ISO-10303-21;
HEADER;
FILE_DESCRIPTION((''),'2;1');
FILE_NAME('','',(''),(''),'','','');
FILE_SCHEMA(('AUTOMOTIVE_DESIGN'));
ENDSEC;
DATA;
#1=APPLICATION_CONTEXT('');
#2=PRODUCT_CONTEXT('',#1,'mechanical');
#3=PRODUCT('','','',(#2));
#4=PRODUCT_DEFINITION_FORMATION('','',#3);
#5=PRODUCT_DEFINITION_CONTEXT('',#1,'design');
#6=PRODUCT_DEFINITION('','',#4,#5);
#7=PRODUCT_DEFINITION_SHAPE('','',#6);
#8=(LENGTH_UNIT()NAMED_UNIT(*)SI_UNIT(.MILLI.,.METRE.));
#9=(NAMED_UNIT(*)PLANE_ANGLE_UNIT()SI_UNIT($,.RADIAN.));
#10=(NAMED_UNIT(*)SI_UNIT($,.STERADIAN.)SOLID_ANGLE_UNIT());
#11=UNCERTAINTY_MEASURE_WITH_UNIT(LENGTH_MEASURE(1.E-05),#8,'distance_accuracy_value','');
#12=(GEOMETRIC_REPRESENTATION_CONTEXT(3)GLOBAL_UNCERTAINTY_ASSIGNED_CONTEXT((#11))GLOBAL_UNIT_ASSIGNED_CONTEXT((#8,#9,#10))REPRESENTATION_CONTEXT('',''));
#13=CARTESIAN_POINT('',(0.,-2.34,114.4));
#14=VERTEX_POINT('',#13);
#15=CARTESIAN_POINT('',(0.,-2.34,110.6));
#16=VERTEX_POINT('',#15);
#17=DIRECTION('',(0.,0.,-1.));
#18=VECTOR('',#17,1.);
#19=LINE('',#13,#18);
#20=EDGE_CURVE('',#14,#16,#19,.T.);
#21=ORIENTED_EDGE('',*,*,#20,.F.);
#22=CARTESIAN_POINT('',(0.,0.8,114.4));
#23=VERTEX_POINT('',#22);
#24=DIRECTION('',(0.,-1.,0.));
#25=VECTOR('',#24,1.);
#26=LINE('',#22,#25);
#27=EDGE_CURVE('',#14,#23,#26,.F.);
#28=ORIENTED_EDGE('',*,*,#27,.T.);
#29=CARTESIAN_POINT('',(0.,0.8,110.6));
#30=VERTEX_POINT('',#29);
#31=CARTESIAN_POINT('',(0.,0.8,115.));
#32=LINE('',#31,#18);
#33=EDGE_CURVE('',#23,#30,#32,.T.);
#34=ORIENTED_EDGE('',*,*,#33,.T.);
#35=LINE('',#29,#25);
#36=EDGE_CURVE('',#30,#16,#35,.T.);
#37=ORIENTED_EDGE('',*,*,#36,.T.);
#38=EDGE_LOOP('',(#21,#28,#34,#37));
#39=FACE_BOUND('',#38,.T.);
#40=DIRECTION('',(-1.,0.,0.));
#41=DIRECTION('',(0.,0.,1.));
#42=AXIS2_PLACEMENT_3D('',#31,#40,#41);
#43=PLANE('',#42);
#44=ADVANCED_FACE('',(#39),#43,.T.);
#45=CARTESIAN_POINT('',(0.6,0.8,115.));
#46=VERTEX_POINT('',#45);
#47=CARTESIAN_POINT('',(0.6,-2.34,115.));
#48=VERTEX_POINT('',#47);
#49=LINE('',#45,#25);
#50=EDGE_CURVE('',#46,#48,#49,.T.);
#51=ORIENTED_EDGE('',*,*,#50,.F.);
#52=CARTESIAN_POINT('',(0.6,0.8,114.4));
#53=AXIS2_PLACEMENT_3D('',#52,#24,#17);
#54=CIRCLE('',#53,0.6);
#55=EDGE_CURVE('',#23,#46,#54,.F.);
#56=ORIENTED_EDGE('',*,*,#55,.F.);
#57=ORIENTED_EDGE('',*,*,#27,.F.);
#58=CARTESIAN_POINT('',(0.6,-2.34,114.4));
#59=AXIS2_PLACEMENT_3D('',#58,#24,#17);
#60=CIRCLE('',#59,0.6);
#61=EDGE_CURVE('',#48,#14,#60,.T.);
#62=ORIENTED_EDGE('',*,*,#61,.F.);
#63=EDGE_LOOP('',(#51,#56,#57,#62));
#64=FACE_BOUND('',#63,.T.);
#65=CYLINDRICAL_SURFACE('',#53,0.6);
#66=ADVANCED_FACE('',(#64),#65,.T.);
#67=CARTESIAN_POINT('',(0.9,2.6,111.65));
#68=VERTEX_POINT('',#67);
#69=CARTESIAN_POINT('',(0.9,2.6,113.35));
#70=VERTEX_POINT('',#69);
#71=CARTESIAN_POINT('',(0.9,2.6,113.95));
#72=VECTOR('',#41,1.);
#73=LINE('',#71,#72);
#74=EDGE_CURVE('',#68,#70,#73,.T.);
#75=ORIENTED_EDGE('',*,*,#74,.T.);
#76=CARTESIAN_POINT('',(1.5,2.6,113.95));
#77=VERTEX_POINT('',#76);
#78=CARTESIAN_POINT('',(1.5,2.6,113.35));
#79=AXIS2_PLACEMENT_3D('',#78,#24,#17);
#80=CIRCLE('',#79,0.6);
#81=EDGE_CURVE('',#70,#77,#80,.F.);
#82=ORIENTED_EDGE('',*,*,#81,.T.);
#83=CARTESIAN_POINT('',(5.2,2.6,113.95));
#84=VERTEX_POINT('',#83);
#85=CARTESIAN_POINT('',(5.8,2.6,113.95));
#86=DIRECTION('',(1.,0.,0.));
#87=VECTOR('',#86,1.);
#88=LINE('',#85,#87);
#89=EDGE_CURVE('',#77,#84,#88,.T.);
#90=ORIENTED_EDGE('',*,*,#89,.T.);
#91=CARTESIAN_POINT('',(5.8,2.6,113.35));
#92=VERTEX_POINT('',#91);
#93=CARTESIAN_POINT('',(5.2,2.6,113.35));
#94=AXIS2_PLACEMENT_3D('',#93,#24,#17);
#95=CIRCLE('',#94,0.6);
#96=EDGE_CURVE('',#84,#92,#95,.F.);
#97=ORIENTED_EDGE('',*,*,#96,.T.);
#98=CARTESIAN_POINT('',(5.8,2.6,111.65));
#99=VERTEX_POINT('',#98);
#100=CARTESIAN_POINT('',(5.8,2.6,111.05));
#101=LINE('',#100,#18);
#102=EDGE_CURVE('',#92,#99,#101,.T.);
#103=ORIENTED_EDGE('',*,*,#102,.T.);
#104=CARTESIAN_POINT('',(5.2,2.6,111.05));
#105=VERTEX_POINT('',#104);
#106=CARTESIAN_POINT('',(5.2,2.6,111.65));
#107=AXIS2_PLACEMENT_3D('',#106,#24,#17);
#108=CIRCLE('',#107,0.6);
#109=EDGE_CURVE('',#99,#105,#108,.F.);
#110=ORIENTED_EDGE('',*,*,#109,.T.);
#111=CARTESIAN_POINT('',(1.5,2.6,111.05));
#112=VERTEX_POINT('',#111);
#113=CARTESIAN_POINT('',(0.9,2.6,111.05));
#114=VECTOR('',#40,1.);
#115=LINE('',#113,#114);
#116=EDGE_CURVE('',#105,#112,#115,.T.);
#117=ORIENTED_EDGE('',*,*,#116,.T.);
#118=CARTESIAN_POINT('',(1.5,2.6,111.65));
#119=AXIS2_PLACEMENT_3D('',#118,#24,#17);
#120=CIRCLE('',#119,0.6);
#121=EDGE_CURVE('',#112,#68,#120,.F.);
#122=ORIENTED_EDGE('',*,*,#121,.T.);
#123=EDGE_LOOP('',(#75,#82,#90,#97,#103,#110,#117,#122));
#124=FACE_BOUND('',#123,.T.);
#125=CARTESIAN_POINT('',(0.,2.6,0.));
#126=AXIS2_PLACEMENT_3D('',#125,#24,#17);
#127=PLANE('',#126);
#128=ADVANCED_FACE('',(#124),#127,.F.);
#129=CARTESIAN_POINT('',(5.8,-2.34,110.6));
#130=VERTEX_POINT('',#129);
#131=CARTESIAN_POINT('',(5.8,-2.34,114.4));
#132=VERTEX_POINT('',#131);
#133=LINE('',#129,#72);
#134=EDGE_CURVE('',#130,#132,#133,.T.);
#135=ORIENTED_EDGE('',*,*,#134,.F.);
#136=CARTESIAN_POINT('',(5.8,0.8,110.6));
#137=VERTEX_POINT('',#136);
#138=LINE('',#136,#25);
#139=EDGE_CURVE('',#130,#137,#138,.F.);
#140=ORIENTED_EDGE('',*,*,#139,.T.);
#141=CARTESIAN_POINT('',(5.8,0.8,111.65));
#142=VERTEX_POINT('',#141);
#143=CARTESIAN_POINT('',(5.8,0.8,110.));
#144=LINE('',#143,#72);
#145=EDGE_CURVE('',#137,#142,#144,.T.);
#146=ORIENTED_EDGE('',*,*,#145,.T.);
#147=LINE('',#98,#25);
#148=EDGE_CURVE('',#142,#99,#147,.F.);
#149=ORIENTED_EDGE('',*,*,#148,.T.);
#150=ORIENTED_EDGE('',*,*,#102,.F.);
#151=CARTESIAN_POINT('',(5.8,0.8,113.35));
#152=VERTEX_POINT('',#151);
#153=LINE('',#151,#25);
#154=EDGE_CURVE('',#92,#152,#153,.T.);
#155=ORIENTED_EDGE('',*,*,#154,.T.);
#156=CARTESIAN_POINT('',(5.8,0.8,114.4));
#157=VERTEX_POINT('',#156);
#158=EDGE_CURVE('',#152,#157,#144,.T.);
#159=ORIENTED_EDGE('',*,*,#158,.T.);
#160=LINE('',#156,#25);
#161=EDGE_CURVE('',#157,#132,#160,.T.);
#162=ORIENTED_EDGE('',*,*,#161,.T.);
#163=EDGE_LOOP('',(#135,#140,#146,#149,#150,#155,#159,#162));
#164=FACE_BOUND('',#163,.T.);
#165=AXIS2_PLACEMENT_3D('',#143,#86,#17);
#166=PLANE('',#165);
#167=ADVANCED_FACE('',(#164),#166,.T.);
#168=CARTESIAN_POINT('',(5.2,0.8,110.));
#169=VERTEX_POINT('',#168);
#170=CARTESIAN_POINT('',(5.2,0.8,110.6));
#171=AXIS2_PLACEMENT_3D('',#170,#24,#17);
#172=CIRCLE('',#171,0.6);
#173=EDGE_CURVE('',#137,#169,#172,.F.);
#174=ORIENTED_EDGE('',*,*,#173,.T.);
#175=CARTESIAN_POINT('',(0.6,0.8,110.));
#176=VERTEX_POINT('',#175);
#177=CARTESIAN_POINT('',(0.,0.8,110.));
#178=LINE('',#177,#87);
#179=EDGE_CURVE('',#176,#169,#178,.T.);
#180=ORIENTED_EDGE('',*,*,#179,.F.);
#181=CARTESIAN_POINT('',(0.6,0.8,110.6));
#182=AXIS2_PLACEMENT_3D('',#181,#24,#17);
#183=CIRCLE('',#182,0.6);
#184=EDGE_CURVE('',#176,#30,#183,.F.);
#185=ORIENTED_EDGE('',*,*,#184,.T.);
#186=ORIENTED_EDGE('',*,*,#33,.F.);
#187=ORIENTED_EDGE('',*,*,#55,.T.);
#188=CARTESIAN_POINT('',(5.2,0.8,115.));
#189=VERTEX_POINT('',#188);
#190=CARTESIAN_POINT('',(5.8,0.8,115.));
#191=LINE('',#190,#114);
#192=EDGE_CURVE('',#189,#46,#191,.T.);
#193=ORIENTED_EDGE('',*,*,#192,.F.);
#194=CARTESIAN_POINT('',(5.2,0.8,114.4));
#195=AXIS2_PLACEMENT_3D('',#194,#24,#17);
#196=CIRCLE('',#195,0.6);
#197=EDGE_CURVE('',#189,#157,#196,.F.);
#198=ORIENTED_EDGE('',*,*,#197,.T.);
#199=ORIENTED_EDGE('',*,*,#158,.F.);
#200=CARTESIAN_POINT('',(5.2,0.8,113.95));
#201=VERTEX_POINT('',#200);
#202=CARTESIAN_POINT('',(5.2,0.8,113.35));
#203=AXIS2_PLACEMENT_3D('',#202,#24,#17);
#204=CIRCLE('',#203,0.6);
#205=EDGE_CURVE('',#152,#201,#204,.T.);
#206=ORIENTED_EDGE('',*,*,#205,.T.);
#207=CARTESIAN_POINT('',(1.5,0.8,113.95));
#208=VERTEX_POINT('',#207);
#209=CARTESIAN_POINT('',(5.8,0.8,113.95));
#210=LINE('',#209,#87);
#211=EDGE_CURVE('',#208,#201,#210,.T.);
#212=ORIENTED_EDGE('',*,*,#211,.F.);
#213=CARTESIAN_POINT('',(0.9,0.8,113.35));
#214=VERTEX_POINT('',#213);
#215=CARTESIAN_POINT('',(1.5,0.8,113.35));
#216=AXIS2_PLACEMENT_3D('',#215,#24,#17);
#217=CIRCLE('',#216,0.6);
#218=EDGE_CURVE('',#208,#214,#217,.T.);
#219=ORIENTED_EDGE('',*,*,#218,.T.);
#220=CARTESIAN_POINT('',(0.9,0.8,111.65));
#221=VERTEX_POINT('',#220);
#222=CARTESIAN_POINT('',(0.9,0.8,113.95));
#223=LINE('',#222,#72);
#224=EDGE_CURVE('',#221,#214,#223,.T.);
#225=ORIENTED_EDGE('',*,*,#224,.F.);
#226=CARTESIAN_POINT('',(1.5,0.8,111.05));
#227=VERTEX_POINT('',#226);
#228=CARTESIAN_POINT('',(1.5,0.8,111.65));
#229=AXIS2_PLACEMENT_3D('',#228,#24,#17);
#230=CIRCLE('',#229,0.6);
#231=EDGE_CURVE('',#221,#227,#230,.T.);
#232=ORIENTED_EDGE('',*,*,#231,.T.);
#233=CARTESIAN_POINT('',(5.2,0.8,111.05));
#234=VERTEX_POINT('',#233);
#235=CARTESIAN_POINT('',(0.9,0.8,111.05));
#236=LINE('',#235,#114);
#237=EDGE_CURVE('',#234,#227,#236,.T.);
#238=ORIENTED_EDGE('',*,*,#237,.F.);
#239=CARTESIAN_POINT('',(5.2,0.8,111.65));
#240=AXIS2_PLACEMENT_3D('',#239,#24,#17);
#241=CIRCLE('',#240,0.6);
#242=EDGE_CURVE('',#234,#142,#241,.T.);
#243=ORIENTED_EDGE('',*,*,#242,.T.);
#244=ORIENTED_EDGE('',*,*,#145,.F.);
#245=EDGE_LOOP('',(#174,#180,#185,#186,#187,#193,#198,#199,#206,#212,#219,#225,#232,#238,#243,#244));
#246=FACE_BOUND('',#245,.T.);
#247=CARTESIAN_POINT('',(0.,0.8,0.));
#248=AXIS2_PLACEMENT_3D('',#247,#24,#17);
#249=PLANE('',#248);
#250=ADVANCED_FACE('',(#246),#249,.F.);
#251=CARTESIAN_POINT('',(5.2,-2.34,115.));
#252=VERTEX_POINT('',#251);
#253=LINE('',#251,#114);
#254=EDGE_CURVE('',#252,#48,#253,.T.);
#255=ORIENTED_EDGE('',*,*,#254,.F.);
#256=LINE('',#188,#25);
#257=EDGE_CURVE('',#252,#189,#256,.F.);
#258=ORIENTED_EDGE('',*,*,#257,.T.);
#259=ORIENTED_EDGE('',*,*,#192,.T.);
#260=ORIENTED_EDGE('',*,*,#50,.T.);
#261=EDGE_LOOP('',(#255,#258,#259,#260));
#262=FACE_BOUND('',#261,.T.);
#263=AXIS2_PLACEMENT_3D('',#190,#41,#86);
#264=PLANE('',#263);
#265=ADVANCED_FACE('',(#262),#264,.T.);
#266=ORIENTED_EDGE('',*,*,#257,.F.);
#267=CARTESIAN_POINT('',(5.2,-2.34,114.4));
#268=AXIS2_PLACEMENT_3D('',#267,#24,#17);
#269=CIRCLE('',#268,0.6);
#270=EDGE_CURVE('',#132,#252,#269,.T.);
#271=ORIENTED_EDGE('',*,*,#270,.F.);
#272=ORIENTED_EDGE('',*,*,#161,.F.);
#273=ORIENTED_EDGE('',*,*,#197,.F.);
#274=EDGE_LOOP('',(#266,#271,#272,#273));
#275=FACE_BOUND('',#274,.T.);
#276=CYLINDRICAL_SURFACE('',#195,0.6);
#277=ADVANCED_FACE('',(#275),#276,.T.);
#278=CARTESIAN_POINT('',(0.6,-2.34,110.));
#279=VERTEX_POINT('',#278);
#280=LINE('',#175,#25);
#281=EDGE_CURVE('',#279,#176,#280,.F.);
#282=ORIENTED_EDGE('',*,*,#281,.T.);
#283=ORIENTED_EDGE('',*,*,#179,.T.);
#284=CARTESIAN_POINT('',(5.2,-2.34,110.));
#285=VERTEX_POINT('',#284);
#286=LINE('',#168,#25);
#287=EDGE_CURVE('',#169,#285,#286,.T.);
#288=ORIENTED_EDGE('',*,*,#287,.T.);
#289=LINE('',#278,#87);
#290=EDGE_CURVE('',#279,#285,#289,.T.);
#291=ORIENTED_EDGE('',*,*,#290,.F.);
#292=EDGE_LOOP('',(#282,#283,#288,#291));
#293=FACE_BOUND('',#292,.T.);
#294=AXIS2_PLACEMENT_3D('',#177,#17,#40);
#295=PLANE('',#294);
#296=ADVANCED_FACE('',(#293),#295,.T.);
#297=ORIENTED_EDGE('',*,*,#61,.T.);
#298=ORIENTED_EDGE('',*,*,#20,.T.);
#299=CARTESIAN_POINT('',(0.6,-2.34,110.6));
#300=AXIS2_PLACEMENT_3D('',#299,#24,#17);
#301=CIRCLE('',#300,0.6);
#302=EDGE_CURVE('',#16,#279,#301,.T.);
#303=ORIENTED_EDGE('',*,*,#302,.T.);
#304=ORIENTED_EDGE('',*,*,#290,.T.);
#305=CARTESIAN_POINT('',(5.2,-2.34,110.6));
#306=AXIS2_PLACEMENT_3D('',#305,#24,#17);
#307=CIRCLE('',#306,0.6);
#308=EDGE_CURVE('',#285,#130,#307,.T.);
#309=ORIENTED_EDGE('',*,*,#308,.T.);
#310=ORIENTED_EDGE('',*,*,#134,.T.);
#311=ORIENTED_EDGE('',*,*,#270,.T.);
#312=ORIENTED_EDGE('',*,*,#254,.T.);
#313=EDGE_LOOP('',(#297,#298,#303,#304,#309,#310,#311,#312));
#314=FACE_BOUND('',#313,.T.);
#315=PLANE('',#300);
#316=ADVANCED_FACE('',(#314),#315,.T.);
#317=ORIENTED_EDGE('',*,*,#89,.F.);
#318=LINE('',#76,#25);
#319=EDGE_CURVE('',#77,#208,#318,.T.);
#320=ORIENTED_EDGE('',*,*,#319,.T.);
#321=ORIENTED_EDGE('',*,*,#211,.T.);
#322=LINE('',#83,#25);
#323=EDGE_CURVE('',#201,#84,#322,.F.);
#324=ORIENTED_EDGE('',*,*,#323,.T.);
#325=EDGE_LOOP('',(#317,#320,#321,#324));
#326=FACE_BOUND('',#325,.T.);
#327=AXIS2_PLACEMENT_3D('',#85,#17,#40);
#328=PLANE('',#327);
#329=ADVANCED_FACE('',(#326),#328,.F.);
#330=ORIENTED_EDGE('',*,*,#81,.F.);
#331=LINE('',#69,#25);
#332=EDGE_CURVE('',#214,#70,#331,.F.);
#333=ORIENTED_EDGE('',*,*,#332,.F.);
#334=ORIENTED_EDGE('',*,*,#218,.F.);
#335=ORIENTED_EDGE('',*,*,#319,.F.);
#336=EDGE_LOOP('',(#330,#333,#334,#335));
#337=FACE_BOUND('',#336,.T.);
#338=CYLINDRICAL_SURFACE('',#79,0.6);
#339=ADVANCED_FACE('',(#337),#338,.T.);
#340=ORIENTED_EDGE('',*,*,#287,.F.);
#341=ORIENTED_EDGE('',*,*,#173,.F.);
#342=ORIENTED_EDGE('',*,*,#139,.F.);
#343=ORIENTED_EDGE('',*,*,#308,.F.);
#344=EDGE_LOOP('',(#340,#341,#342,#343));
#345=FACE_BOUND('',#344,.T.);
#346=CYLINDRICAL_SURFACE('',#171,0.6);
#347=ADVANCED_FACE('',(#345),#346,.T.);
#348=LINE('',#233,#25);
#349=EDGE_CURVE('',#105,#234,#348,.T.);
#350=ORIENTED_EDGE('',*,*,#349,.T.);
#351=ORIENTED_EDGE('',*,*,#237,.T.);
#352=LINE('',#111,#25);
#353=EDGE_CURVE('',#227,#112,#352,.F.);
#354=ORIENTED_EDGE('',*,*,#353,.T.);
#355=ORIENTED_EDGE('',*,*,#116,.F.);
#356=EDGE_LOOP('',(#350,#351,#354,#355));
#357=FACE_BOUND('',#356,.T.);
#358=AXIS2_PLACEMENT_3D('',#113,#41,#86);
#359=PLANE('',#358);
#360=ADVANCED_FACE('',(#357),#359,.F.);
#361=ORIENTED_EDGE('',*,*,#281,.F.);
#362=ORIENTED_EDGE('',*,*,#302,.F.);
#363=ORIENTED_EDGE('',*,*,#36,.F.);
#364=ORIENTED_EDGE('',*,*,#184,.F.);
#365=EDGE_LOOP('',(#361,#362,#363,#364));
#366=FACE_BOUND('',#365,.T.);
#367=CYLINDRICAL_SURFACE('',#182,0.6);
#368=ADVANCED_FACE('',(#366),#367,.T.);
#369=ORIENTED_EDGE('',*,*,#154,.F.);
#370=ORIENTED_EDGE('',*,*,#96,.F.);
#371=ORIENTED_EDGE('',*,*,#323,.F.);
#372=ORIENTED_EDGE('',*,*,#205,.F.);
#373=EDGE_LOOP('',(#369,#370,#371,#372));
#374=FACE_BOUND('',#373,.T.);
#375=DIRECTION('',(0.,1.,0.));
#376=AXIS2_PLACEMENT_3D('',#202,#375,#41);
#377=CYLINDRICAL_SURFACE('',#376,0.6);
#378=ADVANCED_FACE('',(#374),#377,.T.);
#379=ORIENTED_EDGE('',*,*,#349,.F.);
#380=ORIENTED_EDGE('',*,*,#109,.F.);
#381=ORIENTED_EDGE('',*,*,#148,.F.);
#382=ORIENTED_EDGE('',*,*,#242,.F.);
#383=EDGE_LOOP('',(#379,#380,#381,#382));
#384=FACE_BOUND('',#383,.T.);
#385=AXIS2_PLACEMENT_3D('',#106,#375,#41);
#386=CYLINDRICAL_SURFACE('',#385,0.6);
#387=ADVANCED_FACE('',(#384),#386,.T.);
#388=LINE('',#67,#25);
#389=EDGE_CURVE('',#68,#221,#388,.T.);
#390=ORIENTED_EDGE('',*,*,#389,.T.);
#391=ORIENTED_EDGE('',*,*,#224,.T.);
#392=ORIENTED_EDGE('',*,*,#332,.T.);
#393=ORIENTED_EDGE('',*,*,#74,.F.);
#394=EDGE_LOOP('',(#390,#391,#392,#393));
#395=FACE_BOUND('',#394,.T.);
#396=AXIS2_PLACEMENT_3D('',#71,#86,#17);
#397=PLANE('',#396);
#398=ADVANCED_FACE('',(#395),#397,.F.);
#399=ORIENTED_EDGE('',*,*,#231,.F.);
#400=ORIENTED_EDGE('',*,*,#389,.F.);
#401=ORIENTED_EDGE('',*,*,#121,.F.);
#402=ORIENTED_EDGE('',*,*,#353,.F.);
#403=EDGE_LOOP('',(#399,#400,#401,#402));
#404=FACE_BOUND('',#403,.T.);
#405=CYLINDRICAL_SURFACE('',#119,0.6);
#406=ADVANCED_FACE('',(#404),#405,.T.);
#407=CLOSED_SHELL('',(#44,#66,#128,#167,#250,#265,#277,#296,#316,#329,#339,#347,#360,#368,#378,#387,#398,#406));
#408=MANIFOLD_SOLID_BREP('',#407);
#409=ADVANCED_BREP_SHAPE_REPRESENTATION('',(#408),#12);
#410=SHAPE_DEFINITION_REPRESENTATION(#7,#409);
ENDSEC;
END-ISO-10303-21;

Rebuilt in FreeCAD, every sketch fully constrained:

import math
import FreeCAD as App
import Part
import Sketcher

V = App.Vector
Q = App.Units.Quantity


def edges_at(feature, points):
    """Names of the edges that pass closest to the given points."""
    edges = feature.Shape.Edges
    near = lambda p: min(range(len(edges)), key=lambda i: edges[i].distToShape(Part.Vertex(*p))[0])
    return sorted({f"Edge{near(p) + 1}" for p in points})


def add_polygon(sketch, points):
    """Adds a closed chain of lines whose ends are joined by coincident constraints."""
    first, n = sketch.GeometryCount, len(points)
    for a, b in zip(points, points[1:] + points[:1]):
        sketch.addGeometry(Part.LineSegment(App.Vector(*a, 0), App.Vector(*b, 0)), False)
    for i in range(n):
        sketch.addConstraint(Sketcher.Constraint("Coincident", first + i, 2, first + (i + 1) % n, 1))

doc = App.newDocument("Part")
body = doc.addObject("PartDesign::Body", "Body")

sketch1 = body.newObject("Sketcher::SketchObject", "Sketch")
sketch1.AttachmentSupport = (doc.getObject("XZ_Plane"), [""])
sketch1.MapMode = "FlatFace"
add_polygon(sketch1, [(0, 115), (0, 110), (6, 110), (6, 115)])
sketch1.addConstraint([
    Sketcher.Constraint("Vertical", 0),
    Sketcher.Constraint("Horizontal", 1),
    Sketcher.Constraint("Vertical", 2),
    Sketcher.Constraint("Horizontal", 3),
    Sketcher.Constraint("PointOnObject", 0, 2, -2),
    Sketcher.Constraint("DistanceY", 0, 2, 0, 1, Q("5 mm")),
    Sketcher.Constraint("DistanceX", 1, 1, 1, 2, Q("5.8 mm")),
    Sketcher.Constraint("DistanceY", -1, 1, 0, 2, Q("110 mm")),
])
pad1 = body.newObject("PartDesign::Pad", "Pad")
pad1.Profile = sketch1
pad1.Length = 0.8
pad1.Reversed = True

sketch2 = body.newObject("Sketcher::SketchObject", "Sketch001")
sketch2.AttachmentSupport = (doc.getObject("XZ_Plane"), [""])
sketch2.MapMode = "FlatFace"
sketch2.AttachmentOffset = App.Placement(V(0, 0, -0.8), App.Rotation())
add_polygon(sketch2, [(5.8, 114), (5.8, 111), (0.9, 111), (0.9, 114)])
sketch2.addConstraint([
    Sketcher.Constraint("Vertical", 0),
    Sketcher.Constraint("Horizontal", 1),
    Sketcher.Constraint("Vertical", 2),
    Sketcher.Constraint("Horizontal", 3),
    Sketcher.Constraint("DistanceX", 1, 2, 1, 1, Q("4.9 mm")),
    Sketcher.Constraint("DistanceY", 0, 2, 0, 1, Q("2.9 mm")),
    Sketcher.Constraint("DistanceX", -1, 1, 0, 2, Q("5.8 mm")),
    Sketcher.Constraint("DistanceY", -1, 1, 0, 2, Q("111.05 mm")),
])
pad2 = body.newObject("PartDesign::Pad", "Pad001")
pad2.Profile = sketch2
pad2.Length = 1.8
pad2.Reversed = True
doc.recompute()

fillet = body.newObject("PartDesign::Fillet", "Fillet")
fillet.Base = (pad2, edges_at(pad2, [
    (5.8, 1.7, 113.95),
    (5.8, 1.7, 111.05),
    (0.9, 1.7, 111.05),
    (0.9, 1.7, 113.95),
    (0, 0.4, 115),
    (5.8, 0.4, 115),
    (5.8, 0.4, 110),
    (0, 0.4, 110),
]))
fillet.Radius = 0.6

sketch3 = body.newObject("Sketcher::SketchObject", "Sketch002")
sketch3.AttachmentSupport = (doc.getObject("XZ_Plane"), [""])
sketch3.MapMode = "FlatFace"
sketch3.addGeometry([
    Part.LineSegment(V(0.6, 110, 0), V(5.2, 110, 0)),
    Part.ArcOfCircle(Part.Circle(V(5.2, 110.6, 0), V(0, 0, 1), 0.6), math.radians(-90), math.radians(0)),
    Part.LineSegment(V(5.8, 110.6, 0), V(5.8, 114.4, 0)),
    Part.ArcOfCircle(Part.Circle(V(5.2, 114.4, 0), V(0, 0, 1), 0.6), math.radians(0), math.radians(90)),
    Part.LineSegment(V(5.2, 115, 0), V(0.6, 115, 0)),
    Part.ArcOfCircle(Part.Circle(V(0.6, 114.4, 0), V(0, 0, 1), 0.6), math.radians(90), math.radians(180)),
    Part.LineSegment(V(0, 114.4, 0), V(0, 110.6, 0)),
    Part.ArcOfCircle(Part.Circle(V(0.6, 110.6, 0), V(0, 0, 1), 0.6), math.radians(180), math.radians(270)),
], False)
sketch3.addConstraint([
    Sketcher.Constraint("Tangent", 0, 2, 1, 1),
    Sketcher.Constraint("Tangent", 1, 2, 2, 1),
    Sketcher.Constraint("Tangent", 2, 2, 3, 1),
    Sketcher.Constraint("Tangent", 3, 2, 4, 1),
    Sketcher.Constraint("Tangent", 4, 2, 5, 1),
    Sketcher.Constraint("Tangent", 5, 2, 6, 1),
    Sketcher.Constraint("Tangent", 6, 2, 7, 1),
    Sketcher.Constraint("Tangent", 7, 2, 0, 1),
    Sketcher.Constraint("Horizontal", 0),
    Sketcher.Constraint("Vertical", 2),
    Sketcher.Constraint("Horizontal", 4),
    Sketcher.Constraint("Vertical", 6),
    Sketcher.Constraint("Equal", 1, 3),
    Sketcher.Constraint("Equal", 3, 5),
    Sketcher.Constraint("Equal", 5, 7),
    Sketcher.Constraint("PointOnObject", 5, 2, -2),
    Sketcher.Constraint("Radius", 1, Q("0.6 mm")),
    Sketcher.Constraint("DistanceX", 0, 1, 0, 2, Q("4.6 mm")),
    Sketcher.Constraint("DistanceY", 2, 1, 2, 2, Q("3.8 mm")),
    Sketcher.Constraint("DistanceY", -1, 1, 0, 2, Q("110 mm")),
])
pad3 = body.newObject("PartDesign::Pad", "Pad002")
pad3.Profile = sketch3
pad3.Length = 2.34

doc.recompute()
